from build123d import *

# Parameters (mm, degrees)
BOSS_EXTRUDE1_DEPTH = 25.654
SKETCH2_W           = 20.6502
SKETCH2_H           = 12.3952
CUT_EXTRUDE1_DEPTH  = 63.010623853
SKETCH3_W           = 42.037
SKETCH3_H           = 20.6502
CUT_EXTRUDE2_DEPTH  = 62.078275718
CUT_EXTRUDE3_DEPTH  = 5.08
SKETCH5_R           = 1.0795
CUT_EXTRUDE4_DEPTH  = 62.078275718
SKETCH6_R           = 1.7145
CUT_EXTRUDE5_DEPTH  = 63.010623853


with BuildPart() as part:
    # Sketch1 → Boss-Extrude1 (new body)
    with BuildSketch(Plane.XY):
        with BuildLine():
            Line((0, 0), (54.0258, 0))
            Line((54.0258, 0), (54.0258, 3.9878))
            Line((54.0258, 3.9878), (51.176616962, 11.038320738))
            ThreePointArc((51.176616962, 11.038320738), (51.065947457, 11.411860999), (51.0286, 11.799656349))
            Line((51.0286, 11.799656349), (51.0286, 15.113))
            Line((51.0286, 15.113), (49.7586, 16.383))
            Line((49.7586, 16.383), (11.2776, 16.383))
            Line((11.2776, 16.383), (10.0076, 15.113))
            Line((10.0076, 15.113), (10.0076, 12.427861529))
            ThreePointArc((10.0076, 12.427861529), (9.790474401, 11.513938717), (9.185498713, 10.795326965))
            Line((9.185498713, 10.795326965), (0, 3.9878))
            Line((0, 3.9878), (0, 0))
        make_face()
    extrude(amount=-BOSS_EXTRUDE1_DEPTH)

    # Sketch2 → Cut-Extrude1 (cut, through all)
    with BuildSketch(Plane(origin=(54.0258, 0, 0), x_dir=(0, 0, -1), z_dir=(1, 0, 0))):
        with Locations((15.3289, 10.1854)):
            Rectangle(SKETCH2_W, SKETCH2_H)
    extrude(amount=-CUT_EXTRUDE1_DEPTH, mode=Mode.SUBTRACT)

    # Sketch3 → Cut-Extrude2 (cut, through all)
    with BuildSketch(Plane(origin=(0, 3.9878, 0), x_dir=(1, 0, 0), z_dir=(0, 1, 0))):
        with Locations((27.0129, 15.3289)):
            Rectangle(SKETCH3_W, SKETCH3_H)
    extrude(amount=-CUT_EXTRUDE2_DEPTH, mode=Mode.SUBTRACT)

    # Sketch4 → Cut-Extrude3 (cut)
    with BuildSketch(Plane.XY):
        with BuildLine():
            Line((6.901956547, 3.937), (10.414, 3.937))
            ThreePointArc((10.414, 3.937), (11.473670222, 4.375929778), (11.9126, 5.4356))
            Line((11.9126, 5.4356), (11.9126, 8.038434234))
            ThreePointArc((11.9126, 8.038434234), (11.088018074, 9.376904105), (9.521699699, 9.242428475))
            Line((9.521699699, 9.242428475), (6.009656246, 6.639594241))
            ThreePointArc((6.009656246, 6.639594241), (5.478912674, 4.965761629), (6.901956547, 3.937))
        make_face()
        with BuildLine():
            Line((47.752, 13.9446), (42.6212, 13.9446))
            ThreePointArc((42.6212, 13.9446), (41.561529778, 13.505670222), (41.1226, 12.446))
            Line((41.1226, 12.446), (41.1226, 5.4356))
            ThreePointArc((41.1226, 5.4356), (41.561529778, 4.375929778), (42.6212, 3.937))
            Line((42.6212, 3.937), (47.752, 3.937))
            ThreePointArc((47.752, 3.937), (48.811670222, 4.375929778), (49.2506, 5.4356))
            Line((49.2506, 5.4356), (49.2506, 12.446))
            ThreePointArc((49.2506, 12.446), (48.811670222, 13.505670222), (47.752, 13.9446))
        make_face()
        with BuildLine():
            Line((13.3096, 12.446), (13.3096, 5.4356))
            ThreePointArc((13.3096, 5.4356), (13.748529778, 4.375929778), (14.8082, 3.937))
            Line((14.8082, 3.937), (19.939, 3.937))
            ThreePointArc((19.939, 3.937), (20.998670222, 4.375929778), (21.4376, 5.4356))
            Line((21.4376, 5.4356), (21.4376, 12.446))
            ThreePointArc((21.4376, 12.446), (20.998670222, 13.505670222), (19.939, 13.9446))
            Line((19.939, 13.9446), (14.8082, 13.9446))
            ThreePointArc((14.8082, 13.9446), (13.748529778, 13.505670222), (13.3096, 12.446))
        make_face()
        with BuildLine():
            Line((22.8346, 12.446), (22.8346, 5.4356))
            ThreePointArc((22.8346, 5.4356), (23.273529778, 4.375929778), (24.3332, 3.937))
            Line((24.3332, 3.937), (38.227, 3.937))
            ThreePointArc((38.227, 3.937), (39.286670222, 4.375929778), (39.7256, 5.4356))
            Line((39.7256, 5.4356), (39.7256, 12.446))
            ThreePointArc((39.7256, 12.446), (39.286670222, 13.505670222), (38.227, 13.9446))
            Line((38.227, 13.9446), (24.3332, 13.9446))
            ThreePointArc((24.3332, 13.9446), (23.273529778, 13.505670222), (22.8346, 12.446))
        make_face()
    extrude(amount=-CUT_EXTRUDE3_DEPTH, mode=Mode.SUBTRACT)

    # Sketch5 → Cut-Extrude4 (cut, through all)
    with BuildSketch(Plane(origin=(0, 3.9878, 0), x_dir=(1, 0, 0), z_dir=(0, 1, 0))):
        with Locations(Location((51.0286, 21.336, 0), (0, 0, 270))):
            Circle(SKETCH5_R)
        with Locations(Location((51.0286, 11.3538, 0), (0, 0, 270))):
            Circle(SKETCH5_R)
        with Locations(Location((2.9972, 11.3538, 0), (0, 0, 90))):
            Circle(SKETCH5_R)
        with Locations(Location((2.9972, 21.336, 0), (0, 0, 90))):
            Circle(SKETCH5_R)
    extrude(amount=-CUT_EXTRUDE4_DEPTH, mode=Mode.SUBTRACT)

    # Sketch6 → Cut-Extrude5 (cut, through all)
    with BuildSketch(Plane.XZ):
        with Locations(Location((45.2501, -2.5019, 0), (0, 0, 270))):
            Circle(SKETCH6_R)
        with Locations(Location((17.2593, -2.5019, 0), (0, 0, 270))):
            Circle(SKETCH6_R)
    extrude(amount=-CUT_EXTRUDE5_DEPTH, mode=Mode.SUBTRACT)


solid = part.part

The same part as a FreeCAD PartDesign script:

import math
import FreeCAD as App
import Part
import Sketcher
from FreeCAD import Vector
Q = App.Units.Quantity

doc = App.newDocument("Part")
body = doc.addObject("PartDesign::Body", "Body")

# Sketch on XY plane
sketch1 = doc.addObject("Sketcher::SketchObject", "Sketch")
body.addObject(sketch1)
sketch1.AttachmentSupport = (doc.XY_Plane, [""])
sketch1.MapMode = "FlatFace"
sketch1.addGeometry(Part.LineSegment(Vector(0, 0, 0), Vector(54, 0, 0)), False)
sketch1.addGeometry(Part.LineSegment(Vector(54, 0, 0), Vector(54, 4, 0)), False)
sketch1.addGeometry(Part.LineSegment(Vector(54, 4, 0), Vector(51.2, 11, 0)), False)
sketch1.addGeometry(Part.ArcOfCircle(Part.Circle(Vector(53.1, 11.8, 0), Vector(0, 0, 1), 2), math.radians(180), math.radians(202)), False)
sketch1.addGeometry(Part.LineSegment(Vector(51, 11.8, 0), Vector(51, 15.1, 0)), False)
sketch1.addGeometry(Part.LineSegment(Vector(51, 15.1, 0), Vector(49.8, 16.4, 0)), False)
sketch1.addGeometry(Part.LineSegment(Vector(49.8, 16.4, 0), Vector(11.3, 16.4, 0)), False)
sketch1.addGeometry(Part.LineSegment(Vector(11.3, 16.4, 0), Vector(10, 15.1, 0)), False)
sketch1.addGeometry(Part.LineSegment(Vector(10, 15.1, 0), Vector(10, 12.4, 0)), False)
sketch1.addGeometry(Part.ArcOfCircle(Part.Circle(Vector(8, 12.4, 0), Vector(0, 0, 1), 2), math.radians(-53), math.radians(0)), False)
sketch1.addGeometry(Part.LineSegment(Vector(9.2, 10.8, 0), Vector(0, 4, 0)), False)
sketch1.addGeometry(Part.LineSegment(Vector(0, 4, 0), Vector(0, 0, 0)), False)
sketch1.addConstraint(Sketcher.Constraint("Coincident", 0, 2, 1, 1))
sketch1.addConstraint(Sketcher.Constraint("Coincident", 1, 2, 2, 1))
sketch1.addConstraint(Sketcher.Constraint("Tangent", 2, 2, 3, 2))
sketch1.addConstraint(Sketcher.Constraint("Tangent", 3, 1, 4, 1))
sketch1.addConstraint(Sketcher.Constraint("Coincident", 4, 2, 5, 1))
sketch1.addConstraint(Sketcher.Constraint("Coincident", 5, 2, 6, 1))
sketch1.addConstraint(Sketcher.Constraint("Coincident", 6, 2, 7, 1))
sketch1.addConstraint(Sketcher.Constraint("Coincident", 7, 2, 8, 1))
sketch1.addConstraint(Sketcher.Constraint("Tangent", 8, 2, 9, 2))
sketch1.addConstraint(Sketcher.Constraint("Tangent", 9, 1, 10, 1))
sketch1.addConstraint(Sketcher.Constraint("Coincident", 10, 2, 11, 1))
sketch1.addConstraint(Sketcher.Constraint("Coincident", 11, 2, 0, 1))
sketch1.addConstraint(Sketcher.Constraint("Horizontal", 0))
sketch1.addConstraint(Sketcher.Constraint("Vertical", 1))
sketch1.addConstraint(Sketcher.Constraint("Vertical", 4))
sketch1.addConstraint(Sketcher.Constraint("Horizontal", 6))
sketch1.addConstraint(Sketcher.Constraint("Vertical", 8))
sketch1.addConstraint(Sketcher.Constraint("Vertical", 11))
sketch1.addConstraint(Sketcher.Constraint("Coincident", 11, 2, -1, 1))
sketch1.addConstraint(Sketcher.Constraint("Equal", 3, 9))
sketch1.addConstraint(Sketcher.Constraint("Perpendicular", 5, 7))
sketch1.addConstraint(Sketcher.Constraint("Horizontal", 4, 2, 7, 2))
sketch1.addConstraint(Sketcher.Constraint("Horizontal", 1, 2, 10, 2))
sketch1.addConstraint(Sketcher.Constraint("Equal", 5, 7))
sketch1.addConstraint(Sketcher.Constraint("Radius", 3, Q("0.08 in")))
sketch1.addConstraint(Sketcher.Constraint("DistanceX", 0, 1, 0, 2, Q("2.127 in")))
sketch1.addConstraint(Sketcher.Constraint("DistanceX", 6, 2, 6, 1, Q("1.515 in")))
sketch1.addConstraint(Sketcher.Constraint("DistanceY", 1, 1, 1, 2, Q("0.157 in")))
sketch1.addConstraint(Sketcher.Constraint("DistanceX", 5, 2, 4, 2, Q("0.05 in")))
sketch1.addConstraint(Sketcher.Constraint("DistanceX", -1, 1, 3, 3, Q("2.089 in")))
sketch1.addConstraint(Sketcher.Constraint("DistanceY", -1, 1, 4, 2, Q("0.595 in")))
sketch1.addConstraint(Sketcher.Constraint("Distance", 10, 11.433102))
sketch1.addConstraint(Sketcher.Constraint("Distance", 2, 7.604452))
pad1 = doc.addObject("PartDesign::Pad", "Pad")
body.addObject(pad1)
pad1.Profile = sketch1
pad1.Length = Q("1.01 in")
pad1.Reversed = True

# Sketch on YZ plane
sketch2 = doc.addObject("Sketcher::SketchObject", "Sketch001")
body.addObject(sketch2)
sketch2.AttachmentSupport = (doc.YZ_Plane, [""])
sketch2.MapMode = "FlatFace"
sketch2.AttachmentOffset = App.Placement(Vector(0, 0, 2.127 * 25.4), App.Rotation())
sketch2.addGeometry(Part.LineSegment(Vector(16, -5, 0), Vector(4, -5, 0)), False)
sketch2.addGeometry(Part.LineSegment(Vector(4, -5, 0), Vector(4, -26, 0)), False)
sketch2.addGeometry(Part.LineSegment(Vector(4, -26, 0), Vector(16, -26, 0)), False)
sketch2.addGeometry(Part.LineSegment(Vector(16, -26, 0), Vector(16, -5, 0)), False)
sketch2.addConstraint(Sketcher.Constraint("Coincident", 0, 2, 1, 1))
sketch2.addConstraint(Sketcher.Constraint("Coincident", 1, 2, 2, 1))
sketch2.addConstraint(Sketcher.Constraint("Coincident", 2, 2, 3, 1))
sketch2.addConstraint(Sketcher.Constraint("Coincident", 3, 2, 0, 1))
sketch2.addConstraint(Sketcher.Constraint("Horizontal", 0))
sketch2.addConstraint(Sketcher.Constraint("Vertical", 1))
sketch2.addConstraint(Sketcher.Constraint("Horizontal", 2))
sketch2.addConstraint(Sketcher.Constraint("Vertical", 3))
sketch2.addConstraint(Sketcher.Constraint("DistanceX", 0, 2, 0, 1, Q("0.488 in")))
sketch2.addConstraint(Sketcher.Constraint("DistanceY", 1, 2, 1, 1, Q("0.813 in")))
sketch2.addConstraint(Sketcher.Constraint("DistanceY", 1, 2, -1, 1, Q("1.01 in")))
sketch2.addConstraint(Sketcher.Constraint("DistanceX", -1, 1, 0, 2, Q("0.157 in")))
pocket1 = doc.addObject("PartDesign::Pocket", "Pocket")
body.addObject(pocket1)
pocket1.Profile = sketch2
pocket1.Type = "ThroughAll"

# Sketch on XZ plane
sketch3 = doc.addObject("Sketcher::SketchObject", "Sketch002")
body.addObject(sketch3)
sketch3.AttachmentSupport = (doc.XZ_Plane, [""])
sketch3.MapMode = "FlatFace"
sketch3.AttachmentOffset = App.Placement(Vector(0, 0, -0.157 * 25.4), App.Rotation())
sketch3.addGeometry(Part.LineSegment(Vector(6, -26, 0), Vector(6, -5, 0)), False)
sketch3.addGeometry(Part.LineSegment(Vector(6, -5, 0), Vector(48, -5, 0)), False)
sketch3.addGeometry(Part.LineSegment(Vector(48, -5, 0), Vector(48, -26, 0)), False)
sketch3.addGeometry(Part.LineSegment(Vector(48, -26, 0), Vector(6, -26, 0)), False)
sketch3.addConstraint(Sketcher.Constraint("Coincident", 0, 2, 1, 1))
sketch3.addConstraint(Sketcher.Constraint("Coincident", 1, 2, 2, 1))
sketch3.addConstraint(Sketcher.Constraint("Coincident", 2, 2, 3, 1))
sketch3.addConstraint(Sketcher.Constraint("Coincident", 3, 2, 0, 1))
sketch3.addConstraint(Sketcher.Constraint("Vertical", 0))
sketch3.addConstraint(Sketcher.Constraint("Horizontal", 1))
sketch3.addConstraint(Sketcher.Constraint("Vertical", 2))
sketch3.addConstraint(Sketcher.Constraint("Horizontal", 3))
sketch3.addConstraint(Sketcher.Constraint("DistanceX", 1, 1, 1, 2, Q("1.655 in")))
sketch3.addConstraint(Sketcher.Constraint("DistanceY", 0, 1, 0, 2, Q("0.813 in")))
sketch3.addConstraint(Sketcher.Constraint("DistanceY", 2, 2, -1, 1, Q("1.01 in")))
sketch3.addConstraint(Sketcher.Constraint("DistanceX", -1, 1, 0, 2, Q("0.236 in")))
pocket2 = doc.addObject("PartDesign::Pocket", "Pocket001")
body.addObject(pocket2)
pocket2.Profile = sketch3
pocket2.Type = "ThroughAll"
pocket2.Reversed = True

# Sketch on XY plane
sketch4 = doc.addObject("Sketcher::SketchObject", "Sketch003")
body.addObject(sketch4)
sketch4.AttachmentSupport = (doc.XY_Plane, [""])
sketch4.MapMode = "FlatFace"
sketch4.addGeometry(Part.LineSegment(Vector(6.9, 3.9, 0), Vector(10.4, 3.9, 0)), False)
sketch4.addGeometry(Part.ArcOfCircle(Part.Circle(Vector(10.4, 5.4, 0), Vector(0, 0, 1), 1.5), math.radians(-90), math.radians(0)), False)
sketch4.addGeometry(Part.LineSegment(Vector(11.9, 5.4, 0), Vector(11.9, 8, 0)), False)
sketch4.addGeometry(Part.ArcOfCircle(Part.Circle(Vector(10.4, 8, 0), Vector(0, 0, 1), 1.5), math.radians(0), math.radians(127)), False)
sketch4.addGeometry(Part.LineSegment(Vector(9.5, 9.2, 0), Vector(6, 6.6, 0)), False)
sketch4.addGeometry(Part.ArcOfCircle(Part.Circle(Vector(6.9, 5.4, 0), Vector(0, 0, 1), 1.5), math.radians(127), math.radians(270)), False)
sketch4.addGeometry(Part.LineSegment(Vector(47.8, 13.9, 0), Vector(42.6, 13.9, 0)), False)
sketch4.addGeometry(Part.ArcOfCircle(Part.Circle(Vector(42.6, 12.4, 0), Vector(0, 0, 1), 1.5), math.radians(90), math.radians(180)), False)
sketch4.addGeometry(Part.LineSegment(Vector(41.1, 12.4, 0), Vector(41.1, 5.4, 0)), False)
sketch4.addGeometry(Part.ArcOfCircle(Part.Circle(Vector(42.6, 5.4, 0), Vector(0, 0, 1), 1.5), math.radians(-180), math.radians(-90)), False)
sketch4.addGeometry(Part.LineSegment(Vector(42.6, 3.9, 0), Vector(47.8, 3.9, 0)), False)
sketch4.addGeometry(Part.ArcOfCircle(Part.Circle(Vector(47.8, 5.4, 0), Vector(0, 0, 1), 1.5), math.radians(-90), math.radians(0)), False)
sketch4.addGeometry(Part.LineSegment(Vector(49.3, 5.4, 0), Vector(49.3, 12.4, 0)), False)
sketch4.addGeometry(Part.ArcOfCircle(Part.Circle(Vector(47.8, 12.4, 0), Vector(0, 0, 1), 1.5), math.radians(0), math.radians(90)), False)
sketch4.addGeometry(Part.LineSegment(Vector(13.3, 12.4, 0), Vector(13.3, 5.4, 0)), False)
sketch4.addGeometry(Part.ArcOfCircle(Part.Circle(Vector(14.8, 5.4, 0), Vector(0, 0, 1), 1.5), math.radians(-180), math.radians(-90)), False)
sketch4.addGeometry(Part.LineSegment(Vector(14.8, 3.9, 0), Vector(19.9, 3.9, 0)), False)
sketch4.addGeometry(Part.ArcOfCircle(Part.Circle(Vector(19.9, 5.4, 0), Vector(0, 0, 1), 1.5), math.radians(-90), math.radians(0)), False)
sketch4.addGeometry(Part.LineSegment(Vector(21.4, 5.4, 0), Vector(21.4, 12.4, 0)), False)
sketch4.addGeometry(Part.ArcOfCircle(Part.Circle(Vector(19.9, 12.4, 0), Vector(0, 0, 1), 1.5), math.radians(0), math.radians(90)), False)
sketch4.addGeometry(Part.LineSegment(Vector(19.9, 13.9, 0), Vector(14.8, 13.9, 0)), False)
sketch4.addGeometry(Part.ArcOfCircle(Part.Circle(Vector(14.8, 12.4, 0), Vector(0, 0, 1), 1.5), math.radians(90), math.radians(180)), False)
sketch4.addGeometry(Part.LineSegment(Vector(22.8, 12.4, 0), Vector(22.8, 5.4, 0)), False)
sketch4.addGeometry(Part.ArcOfCircle(Part.Circle(Vector(24.3, 5.4, 0), Vector(0, 0, 1), 1.5), math.radians(-180), math.radians(-90)), False)
sketch4.addGeometry(Part.LineSegment(Vector(24.3, 3.9, 0), Vector(38.2, 3.9, 0)), False)
sketch4.addGeometry(Part.ArcOfCircle(Part.Circle(Vector(38.2, 5.4, 0), Vector(0, 0, 1), 1.5), math.radians(-90), math.radians(0)), False)
sketch4.addGeometry(Part.LineSegment(Vector(39.7, 5.4, 0), Vector(39.7, 12.4, 0)), False)
sketch4.addGeometry(Part.ArcOfCircle(Part.Circle(Vector(38.2, 12.4, 0), Vector(0, 0, 1), 1.5), math.radians(0), math.radians(90)), False)
sketch4.addGeometry(Part.LineSegment(Vector(38.2, 13.9, 0), Vector(24.3, 13.9, 0)), False)
sketch4.addGeometry(Part.ArcOfCircle(Part.Circle(Vector(24.3, 12.4, 0), Vector(0, 0, 1), 1.5), math.radians(90), math.radians(180)), False)
sketch4.addConstraint(Sketcher.Constraint("Tangent", 0, 2, 1, 1))
sketch4.addConstraint(Sketcher.Constraint("Tangent", 1, 2, 2, 1))
sketch4.addConstraint(Sketcher.Constraint("Tangent", 2, 2, 3, 1))
sketch4.addConstraint(Sketcher.Constraint("Tangent", 3, 2, 4, 1))
sketch4.addConstraint(Sketcher.Constraint("Tangent", 4, 2, 5, 1))
sketch4.addConstraint(Sketcher.Constraint("Tangent", 5, 2, 0, 1))
sketch4.addConstraint(Sketcher.Constraint("Tangent", 6, 2, 7, 1))
sketch4.addConstraint(Sketcher.Constraint("Tangent", 7, 2, 8, 1))
sketch4.addConstraint(Sketcher.Constraint("Tangent", 8, 2, 9, 1))
sketch4.addConstraint(Sketcher.Constraint("Tangent", 9, 2, 10, 1))
sketch4.addConstraint(Sketcher.Constraint("Tangent", 10, 2, 11, 1))
sketch4.addConstraint(Sketcher.Constraint("Tangent", 11, 2, 12, 1))
sketch4.addConstraint(Sketcher.Constraint("Tangent", 12, 2, 13, 1))
sketch4.addConstraint(Sketcher.Constraint("Tangent", 13, 2, 6, 1))
sketch4.addConstraint(Sketcher.Constraint("Tangent", 14, 2, 15, 1))
sketch4.addConstraint(Sketcher.Constraint("Tangent", 15, 2, 16, 1))
sketch4.addConstraint(Sketcher.Constraint("Tangent", 16, 2, 17, 1))
sketch4.addConstraint(Sketcher.Constraint("Tangent", 17, 2, 18, 1))
sketch4.addConstraint(Sketcher.Constraint("Tangent", 18, 2, 19, 1))
sketch4.addConstraint(Sketcher.Constraint("Tangent", 19, 2, 20, 1))
sketch4.addConstraint(Sketcher.Constraint("Tangent", 20, 2, 21, 1))
sketch4.addConstraint(Sketcher.Constraint("Tangent", 21, 2, 14, 1))
sketch4.addConstraint(Sketcher.Constraint("Tangent", 22, 2, 23, 1))
sketch4.addConstraint(Sketcher.Constraint("Tangent", 23, 2, 24, 1))
sketch4.addConstraint(Sketcher.Constraint("Tangent", 24, 2, 25, 1))
sketch4.addConstraint(Sketcher.Constraint("Tangent", 25, 2, 26, 1))
sketch4.addConstraint(Sketcher.Constraint("Tangent", 26, 2, 27, 1))
sketch4.addConstraint(Sketcher.Constraint("Tangent", 27, 2, 28, 1))
sketch4.addConstraint(Sketcher.Constraint("Tangent", 28, 2, 29, 1))
sketch4.addConstraint(Sketcher.Constraint("Tangent", 29, 2, 22, 1))
sketch4.addConstraint(Sketcher.Constraint("Horizontal", 0))
sketch4.addConstraint(Sketcher.Constraint("Vertical", 2))
sketch4.addConstraint(Sketcher.Constraint("Horizontal", 6))
sketch4.addConstraint(Sketcher.Constraint("Vertical", 8))
sketch4.addConstraint(Sketcher.Constraint("Horizontal", 10))
sketch4.addConstraint(Sketcher.Constraint("Vertical", 12))
sketch4.addConstraint(Sketcher.Constraint("Vertical", 14))
sketch4.addConstraint(Sketcher.Constraint("Horizontal", 16))
sketch4.addConstraint(Sketcher.Constraint("Vertical", 18))
sketch4.addConstraint(Sketcher.Constraint("Horizontal", 20))
sketch4.addConstraint(Sketcher.Constraint("Vertical", 22))
sketch4.addConstraint(Sketcher.Constraint("Horizontal", 24))
sketch4.addConstraint(Sketcher.Constraint("Vertical", 26))
sketch4.addConstraint(Sketcher.Constraint("Horizontal", 28))
sketch4.addConstraint(Sketcher.Constraint("Equal", 1, 3))
sketch4.addConstraint(Sketcher.Constraint("Equal", 3, 5))
sketch4.addConstraint(Sketcher.Constraint("Equal", 5, 7))
sketch4.addConstraint(Sketcher.Constraint("Equal", 7, 9))
sketch4.addConstraint(Sketcher.Constraint("Equal", 9, 11))
sketch4.addConstraint(Sketcher.Constraint("Equal", 11, 13))
sketch4.addConstraint(Sketcher.Constraint("Equal", 13, 15))
sketch4.addConstraint(Sketcher.Constraint("Equal", 15, 17))
sketch4.addConstraint(Sketcher.Constraint("Equal", 17, 19))
sketch4.addConstraint(Sketcher.Constraint("Equal", 19, 21))
sketch4.addConstraint(Sketcher.Constraint("Equal", 21, 23))
sketch4.addConstraint(Sketcher.Constraint("Equal", 23, 25))
sketch4.addConstraint(Sketcher.Constraint("Equal", 25, 27))
sketch4.addConstraint(Sketcher.Constraint("Equal", 27, 29))
sketch4.addConstraint(Sketcher.Constraint("Horizontal", 5, 3, 9, 3))
sketch4.addConstraint(Sketcher.Constraint("Horizontal", 11, 3, 15, 3))
sketch4.addConstraint(Sketcher.Constraint("Horizontal", 13, 3, 19, 3))
sketch4.addConstraint(Sketcher.Constraint("Horizontal", 17, 3, 23, 3))
sketch4.addConstraint(Sketcher.Constraint("Horizontal", 21, 3, 27, 3))
sketch4.addConstraint(Sketcher.Constraint("Equal", 10, 16))
sketch4.addConstraint(Sketcher.Constraint("Radius", 1, Q("0.059 in")))
sketch4.addConstraint(Sketcher.Constraint("DistanceX", 6, 2, 6, 1, Q("0.202 in")))
sketch4.addConstraint(Sketcher.Constraint("DistanceX", 24, 1, 24, 2, Q("0.547 in")))
sketch4.addConstraint(Sketcher.Constraint("DistanceY", 8, 2, 8, 1, Q("0.276 in")))
sketch4.addConstraint(Sketcher.Constraint("DistanceX", -1, 1, 1, 3, Q("0.41 in")))
sketch4.addConstraint(Sketcher.Constraint("DistanceY", -1, 1, 7, 3, Q("0.49 in")))
sketch4.addConstraint(Sketcher.Constraint("DistanceX", -1, 1, 11, 3, Q("1.88 in")))
sketch4.addConstraint(Sketcher.Constraint("DistanceX", -1, 1, 15, 3, Q("0.583 in")))
sketch4.addConstraint(Sketcher.Constraint("DistanceX", -1, 1, 23, 3, Q("0.958 in")))
sketch4.addConstraint(Sketcher.Constraint("DistanceX", -1, 1, 3, 2, 9.5217))
sketch4.addConstraint(Sketcher.Constraint("DistanceX", 0, 1, 0, 2, 3.512043))
pocket3 = doc.addObject("PartDesign::Pocket", "Pocket002")
body.addObject(pocket3)
pocket3.Profile = sketch4
pocket3.Length = Q("0.2 in")

# Sketch on XZ plane
sketch5 = doc.addObject("Sketcher::SketchObject", "Sketch004")
body.addObject(sketch5)
sketch5.AttachmentSupport = (doc.XZ_Plane, [""])
sketch5.MapMode = "FlatFace"
sketch5.AttachmentOffset = App.Placement(Vector(0, 0, -0.157 * 25.4), App.Rotation())
sketch5.addGeometry(Part.Circle(Vector(51, -21.3, 0), Vector(0, 0, 1), 1.1), False)
sketch5.addGeometry(Part.Circle(Vector(51, -11.4, 0), Vector(0, 0, 1), 1.1), False)
sketch5.addGeometry(Part.Circle(Vector(3, -11.4, 0), Vector(0, 0, 1), 1.1), False)
sketch5.addGeometry(Part.Circle(Vector(3, -21.3, 0), Vector(0, 0, 1), 1.1), False)
sketch5.addConstraint(Sketcher.Constraint("Equal", 0, 1))
sketch5.addConstraint(Sketcher.Constraint("Equal", 1, 2))
sketch5.addConstraint(Sketcher.Constraint("Equal", 2, 3))
sketch5.addConstraint(Sketcher.Constraint("Horizontal", 1, 3, 2, 3))
sketch5.addConstraint(Sketcher.Constraint("Horizontal", 0, 3, 3, 3))
sketch5.addConstraint(Sketcher.Constraint("Vertical", 0, 3, 1, 3))
sketch5.addConstraint(Sketcher.Constraint("Vertical", 2, 3, 3, 3))
sketch5.addConstraint(Sketcher.Constraint("Diameter", 0, Q("0.085 in")))
sketch5.addConstraint(Sketcher.Constraint("DistanceY", 0, 3, -1, 1, Q("0.84 in")))
sketch5.addConstraint(Sketcher.Constraint("DistanceX", -1, 1, 0, 3, Q("2.009 in")))
sketch5.addConstraint(Sketcher.Constraint("DistanceY", 1, 3, -1, 1, Q("0.447 in")))
sketch5.addConstraint(Sketcher.Constraint("DistanceX", -1, 1, 2, 3, Q("0.118 in")))
pocket4 = doc.addObject("PartDesign::Pocket", "Pocket003")
body.addObject(pocket4)
pocket4.Profile = sketch5
pocket4.Type = "ThroughAll"
pocket4.Reversed = True

# Sketch on XZ plane
sketch6 = doc.addObject("Sketcher::SketchObject", "Sketch005")
body.addObject(sketch6)
sketch6.AttachmentSupport = (doc.XZ_Plane, [""])
sketch6.MapMode = "FlatFace"
sketch6.addGeometry(Part.Circle(Vector(45.3, -2.5, 0), Vector(0, 0, 1), 1.7), False)
sketch6.addGeometry(Part.Circle(Vector(17.3, -2.5, 0), Vector(0, 0, 1), 1.7), False)
sketch6.addConstraint(Sketcher.Constraint("Equal", 0, 1))
sketch6.addConstraint(Sketcher.Constraint("Horizontal", 0, 3, 1, 3))
sketch6.addConstraint(Sketcher.Constraint("Diameter", 0, Q("0.135 in")))
sketch6.addConstraint(Sketcher.Constraint("DistanceX", 1, 3, 0, 3, Q("1.102 in")))
sketch6.addConstraint(Sketcher.Constraint("DistanceX", -1, 1, 0, 3, Q("1.7815 in")))
sketch6.addConstraint(Sketcher.Constraint("DistanceY", 0, 3, -1, 1, Q("0.0985 in")))
pocket5 = doc.addObject("PartDesign::Pocket", "Pocket004")
body.addObject(pocket5)
pocket5.Profile = sketch6
pocket5.Type = "ThroughAll"

doc.recompute()
